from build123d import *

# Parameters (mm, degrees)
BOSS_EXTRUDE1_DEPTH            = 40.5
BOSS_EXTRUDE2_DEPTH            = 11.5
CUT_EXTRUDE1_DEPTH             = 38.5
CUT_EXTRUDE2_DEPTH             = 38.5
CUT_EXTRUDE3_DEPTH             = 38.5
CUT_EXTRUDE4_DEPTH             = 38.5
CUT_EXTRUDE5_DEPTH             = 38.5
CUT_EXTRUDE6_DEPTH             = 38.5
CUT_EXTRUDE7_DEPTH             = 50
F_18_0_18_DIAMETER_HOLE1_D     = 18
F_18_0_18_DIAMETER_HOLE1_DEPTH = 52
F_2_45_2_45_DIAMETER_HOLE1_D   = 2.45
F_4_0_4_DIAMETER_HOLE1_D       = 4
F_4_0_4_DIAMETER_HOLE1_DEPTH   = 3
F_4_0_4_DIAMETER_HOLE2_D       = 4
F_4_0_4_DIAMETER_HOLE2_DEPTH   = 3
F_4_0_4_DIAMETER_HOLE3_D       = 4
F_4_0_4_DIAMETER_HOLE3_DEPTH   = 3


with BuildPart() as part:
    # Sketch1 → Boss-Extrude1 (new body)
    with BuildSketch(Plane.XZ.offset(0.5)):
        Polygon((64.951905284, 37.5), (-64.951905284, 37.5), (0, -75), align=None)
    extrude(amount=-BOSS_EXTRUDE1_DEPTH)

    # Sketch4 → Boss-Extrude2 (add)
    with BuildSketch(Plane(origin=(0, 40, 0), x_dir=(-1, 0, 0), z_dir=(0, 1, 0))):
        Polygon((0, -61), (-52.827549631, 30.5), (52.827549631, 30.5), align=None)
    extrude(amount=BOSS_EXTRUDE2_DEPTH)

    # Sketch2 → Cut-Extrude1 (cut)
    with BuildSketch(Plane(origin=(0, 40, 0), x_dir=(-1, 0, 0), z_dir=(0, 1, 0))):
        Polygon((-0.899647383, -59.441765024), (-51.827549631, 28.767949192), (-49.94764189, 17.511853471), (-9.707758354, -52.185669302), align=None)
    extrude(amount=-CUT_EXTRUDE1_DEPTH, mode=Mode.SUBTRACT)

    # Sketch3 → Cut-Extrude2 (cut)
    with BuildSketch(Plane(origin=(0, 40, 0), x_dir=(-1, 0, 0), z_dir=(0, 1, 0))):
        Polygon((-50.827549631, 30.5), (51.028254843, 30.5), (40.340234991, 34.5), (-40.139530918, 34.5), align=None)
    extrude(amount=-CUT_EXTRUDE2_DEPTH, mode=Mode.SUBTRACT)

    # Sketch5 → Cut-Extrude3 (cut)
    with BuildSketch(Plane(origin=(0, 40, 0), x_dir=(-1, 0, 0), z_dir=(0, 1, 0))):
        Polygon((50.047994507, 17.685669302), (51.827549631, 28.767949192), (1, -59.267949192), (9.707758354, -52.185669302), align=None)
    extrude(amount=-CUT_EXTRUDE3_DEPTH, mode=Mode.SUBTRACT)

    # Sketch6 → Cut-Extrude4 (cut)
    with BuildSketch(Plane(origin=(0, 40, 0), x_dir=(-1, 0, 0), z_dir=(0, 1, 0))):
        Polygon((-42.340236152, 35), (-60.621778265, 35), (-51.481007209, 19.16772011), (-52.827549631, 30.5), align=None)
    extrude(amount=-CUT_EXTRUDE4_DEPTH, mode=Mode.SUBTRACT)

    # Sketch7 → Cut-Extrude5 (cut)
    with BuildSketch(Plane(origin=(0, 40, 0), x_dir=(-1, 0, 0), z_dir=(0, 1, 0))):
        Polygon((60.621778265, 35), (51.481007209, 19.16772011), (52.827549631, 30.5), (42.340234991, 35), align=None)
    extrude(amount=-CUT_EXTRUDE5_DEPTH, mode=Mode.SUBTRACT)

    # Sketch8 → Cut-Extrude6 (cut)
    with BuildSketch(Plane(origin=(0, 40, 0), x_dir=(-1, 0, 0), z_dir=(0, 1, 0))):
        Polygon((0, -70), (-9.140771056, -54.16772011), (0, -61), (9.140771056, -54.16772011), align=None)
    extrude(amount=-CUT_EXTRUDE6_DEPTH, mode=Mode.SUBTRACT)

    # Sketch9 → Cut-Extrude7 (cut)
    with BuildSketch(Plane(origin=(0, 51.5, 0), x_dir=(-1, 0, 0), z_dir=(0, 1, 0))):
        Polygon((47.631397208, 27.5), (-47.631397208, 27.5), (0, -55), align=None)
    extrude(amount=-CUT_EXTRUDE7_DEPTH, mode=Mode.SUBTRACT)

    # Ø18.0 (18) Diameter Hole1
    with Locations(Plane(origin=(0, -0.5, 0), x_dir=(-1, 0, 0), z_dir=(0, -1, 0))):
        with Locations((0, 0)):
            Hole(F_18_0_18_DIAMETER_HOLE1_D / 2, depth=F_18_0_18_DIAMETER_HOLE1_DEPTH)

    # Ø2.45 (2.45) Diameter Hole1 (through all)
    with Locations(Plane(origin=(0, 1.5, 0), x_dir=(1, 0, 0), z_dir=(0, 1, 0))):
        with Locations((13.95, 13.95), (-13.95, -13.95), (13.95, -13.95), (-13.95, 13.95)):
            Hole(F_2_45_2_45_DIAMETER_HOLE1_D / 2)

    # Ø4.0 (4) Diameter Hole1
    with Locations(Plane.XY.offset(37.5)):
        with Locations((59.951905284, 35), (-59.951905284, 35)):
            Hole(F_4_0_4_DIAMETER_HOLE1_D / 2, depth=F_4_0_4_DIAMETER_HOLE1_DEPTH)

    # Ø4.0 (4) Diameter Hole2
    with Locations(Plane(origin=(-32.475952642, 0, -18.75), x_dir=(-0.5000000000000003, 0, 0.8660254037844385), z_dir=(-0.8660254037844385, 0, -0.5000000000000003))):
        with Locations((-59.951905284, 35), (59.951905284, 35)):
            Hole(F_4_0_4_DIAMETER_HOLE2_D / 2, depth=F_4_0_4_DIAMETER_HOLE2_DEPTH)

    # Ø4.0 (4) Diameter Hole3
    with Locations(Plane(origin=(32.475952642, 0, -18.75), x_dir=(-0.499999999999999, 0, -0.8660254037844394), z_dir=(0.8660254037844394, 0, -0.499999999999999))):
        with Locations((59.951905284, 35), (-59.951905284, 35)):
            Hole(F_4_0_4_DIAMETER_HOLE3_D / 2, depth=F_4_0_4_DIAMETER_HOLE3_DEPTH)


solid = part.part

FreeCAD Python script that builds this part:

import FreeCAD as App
import Part
import Sketcher
Q = App.Units.Quantity


def add_polygon(sketch, points):
    """Adds a closed chain of lines whose ends are joined by coincident constraints."""
    first, n = sketch.GeometryCount, len(points)
    for a, b in zip(points, points[1:] + points[:1]):
        sketch.addGeometry(Part.LineSegment(App.Vector(*a, 0), App.Vector(*b, 0)), False)
    for i in range(n):
        sketch.addConstraint(Sketcher.Constraint("Coincident", first + i, 2, first + (i + 1) % n, 1))

doc = App.newDocument("Part")
body = doc.addObject("PartDesign::Body", "Body")

# Sketch on XZ plane
sketch1 = doc.addObject("Sketcher::SketchObject", "Sketch")
body.addObject(sketch1)
sketch1.AttachmentSupport = (doc.XZ_Plane, [""])
sketch1.MapMode = "FlatFace"
sketch1.AttachmentOffset = App.Placement(App.Vector(0, 0, 0.5), App.Rotation())
add_polygon(sketch1, [(64.951905, 37.5), (-64.951905, 37.5), (0, -75)])  # lines 0-2
sketch1.addConstraint([
    Sketcher.Constraint("Horizontal", 0),
    Sketcher.Constraint("PointOnObject", 1, 2, -2),
    Sketcher.Constraint("Equal", 1, 2),
    Sketcher.Constraint("Angle", 1, Q("-60 deg")),
    Sketcher.Constraint("DistanceY", 1, 2, -1, 1, Q("75 mm")),
    Sketcher.Constraint("DistanceY", -1, 1, 0, 2, Q("37.5 mm")),
])
pad1 = doc.addObject("PartDesign::Pad", "Pad")
body.addObject(pad1)
pad1.Profile = sketch1
pad1.Length = 40.5
pad1.Reversed = True

# Sketch on XZ plane
sketch2 = doc.addObject("Sketcher::SketchObject", "Sketch001")
body.addObject(sketch2)
sketch2.AttachmentSupport = (doc.XZ_Plane, [""])
sketch2.MapMode = "FlatFace"
sketch2.AttachmentOffset = App.Placement(App.Vector(0, 0, -40), App.Rotation())
add_polygon(sketch2, [(52.82755, 30.5), (0, -61), (-52.82755, 30.5)])  # lines 0-2
sketch2.addConstraint([
    Sketcher.Constraint("Horizontal", 2),
    Sketcher.Constraint("PointOnObject", 0, 2, -2),
    Sketcher.Constraint("Equal", 0, 1),
    Sketcher.Constraint("Angle", 0, Q("-120 deg")),
    Sketcher.Constraint("DistanceY", 0, 2, -1, 1, Q("61 mm")),
    Sketcher.Constraint("DistanceY", -1, 1, 1, 2, Q("30.5 mm")),
])
pad2 = doc.addObject("PartDesign::Pad", "Pad001")
body.addObject(pad2)
pad2.Profile = sketch2
pad2.Length = 11.5
pad2.Reversed = True

# Sketch on XZ plane
sketch3 = doc.addObject("Sketcher::SketchObject", "Sketch002")
body.addObject(sketch3)
sketch3.AttachmentSupport = (doc.XZ_Plane, [""])
sketch3.MapMode = "FlatFace"
sketch3.AttachmentOffset = App.Placement(App.Vector(0, 0, -40), App.Rotation())
add_polygon(sketch3, [(0.899647, -59.441765), (51.82755, 28.767949), (49.947642, 17.511853), (9.707758, -52.185669)])  # lines 0-3
sketch3.addConstraint([
    Sketcher.Constraint("Parallel", 0, 2),
    Sketcher.Constraint("Equal", 1, 3),
    Sketcher.Constraint("Angle", 0, Q("60 deg")),
    Sketcher.Constraint("Distance", 1, Q("11.412 mm")),
    Sketcher.Constraint("DistanceX", -1, 1, 0, 2, Q("51.82755 mm")),
    Sketcher.Constraint("DistanceY", -1, 1, 0, 2, Q("28.767949 mm")),
    Sketcher.Constraint("DistanceX", -1, 1, 1, 2, Q("49.947642 mm")),
    Sketcher.Constraint("DistanceX", -1, 1, 2, 2, Q("9.707758 mm")),
])
pocket1 = doc.addObject("PartDesign::Pocket", "Pocket")
body.addObject(pocket1)
pocket1.Profile = sketch3
pocket1.Length = 38.5
pocket1.Reversed = True

# Sketch on XZ plane
sketch4 = doc.addObject("Sketcher::SketchObject", "Sketch003")
body.addObject(sketch4)
sketch4.AttachmentSupport = (doc.XZ_Plane, [""])
sketch4.MapMode = "FlatFace"
sketch4.AttachmentOffset = App.Placement(App.Vector(0, 0, -40), App.Rotation())
add_polygon(sketch4, [(50.82755, 30.5), (-51.028255, 30.5), (-40.340235, 34.5), (40.139531, 34.5)])  # lines 0-3
sketch4.addConstraint([
    Sketcher.Constraint("Horizontal", 0),
    Sketcher.Constraint("Horizontal", 2),
    Sketcher.Constraint("Equal", 1, 3),
    Sketcher.Constraint("DistanceY", 0, 2, 1, 2, Q("4 mm")),
    Sketcher.Constraint("DistanceY", -1, 1, 0, 2, Q("30.5 mm")),
    Sketcher.Constraint("Distance", 1, Q("11.412001 mm")),
    Sketcher.Constraint("DistanceX", 0, 2, 0, 1, Q("101.855804 mm")),
    Sketcher.Constraint("DistanceX", -1, 1, 2, 2, Q("40.139531 mm")),
])
pocket2 = doc.addObject("PartDesign::Pocket", "Pocket001")
body.addObject(pocket2)
pocket2.Profile = sketch4
pocket2.Length = 38.5
pocket2.Reversed = True

# Sketch on XZ plane
sketch5 = doc.addObject("Sketcher::SketchObject", "Sketch004")
body.addObject(sketch5)
sketch5.AttachmentSupport = (doc.XZ_Plane, [""])
sketch5.MapMode = "FlatFace"
sketch5.AttachmentOffset = App.Placement(App.Vector(0, 0, -40), App.Rotation())
add_polygon(sketch5, [(-50.047995, 17.685669), (-51.82755, 28.767949), (-1, -59.267949), (-9.707758, -52.185669)])  # lines 0-3
sketch5.addConstraint([
    Sketcher.Constraint("Parallel", 1, 3),
    Sketcher.Constraint("Equal", 0, 2),
    Sketcher.Constraint("Angle", 1, Q("-60 deg")),
    Sketcher.Constraint("DistanceX", 1, 2, -1, 1, Q("1 mm")),
    Sketcher.Constraint("Distance", 1, Q("101.655099 mm")),
    Sketcher.Constraint("Distance", 0, Q("11.224248 mm")),
    Sketcher.Constraint("DistanceY", -1, 1, 0, 2, Q("28.767949 mm")),
    Sketcher.Constraint("DistanceX", 2, 2, -1, 1, Q("9.707758 mm")),
])
pocket3 = doc.addObject("PartDesign::Pocket", "Pocket002")
body.addObject(pocket3)
pocket3.Profile = sketch5
pocket3.Length = 38.5
pocket3.Reversed = True

# Sketch on XZ plane
sketch6 = doc.addObject("Sketcher::SketchObject", "Sketch005")
body.addObject(sketch6)
sketch6.AttachmentSupport = (doc.XZ_Plane, [""])
sketch6.MapMode = "FlatFace"
sketch6.AttachmentOffset = App.Placement(App.Vector(0, 0, -40), App.Rotation())
add_polygon(sketch6, [(42.340236, 35), (60.621778, 35), (51.481007, 19.16772), (52.82755, 30.5)])  # lines 0-3
sketch6.addConstraint([
    Sketcher.Constraint("Horizontal", 0),
    Sketcher.Constraint("Equal", 2, 3),
    Sketcher.Constraint("Angle", 1, Q("-120 deg")),
    Sketcher.Constraint("DistanceY", -1, 1, 0, 2, Q("35 mm")),
    Sketcher.Constraint("DistanceY", -1, 1, 2, 2, Q("30.5 mm")),
    Sketcher.Constraint("Distance", 2, Q("11.412 mm")),
    Sketcher.Constraint("DistanceX", 0, 1, 0, 2, Q("18.281542 mm")),
    Sketcher.Constraint("DistanceX", -1, 1, 0, 2, Q("60.621778 mm")),
])
pocket4 = doc.addObject("PartDesign::Pocket", "Pocket003")
body.addObject(pocket4)
pocket4.Profile = sketch6
pocket4.Length = 38.5
pocket4.Reversed = True

# Sketch on XZ plane
sketch7 = doc.addObject("Sketcher::SketchObject", "Sketch006")
body.addObject(sketch7)
sketch7.AttachmentSupport = (doc.XZ_Plane, [""])
sketch7.MapMode = "FlatFace"
sketch7.AttachmentOffset = App.Placement(App.Vector(0, 0, -40), App.Rotation())
add_polygon(sketch7, [(-51.481007, 19.16772), (-60.621778, 35), (-42.340235, 35), (-52.82755, 30.5)])  # lines 0-3
sketch7.addConstraint([
    Sketcher.Constraint("Horizontal", 1),
    Sketcher.Constraint("Equal", 2, 3),
    Sketcher.Constraint("Angle", 0, Q("120 deg")),
    Sketcher.Constraint("DistanceY", -1, 1, 0, 2, Q("35 mm")),
    Sketcher.Constraint("DistanceY", -1, 1, 2, 2, Q("30.5 mm")),
    Sketcher.Constraint("Distance", 2, Q("11.412001 mm")),
    Sketcher.Constraint("DistanceX", 1, 1, 1, 2, Q("18.281543 mm")),
    Sketcher.Constraint("DistanceX", 0, 2, -1, 1, Q("60.621778 mm")),
])
pocket5 = doc.addObject("PartDesign::Pocket", "Pocket004")
body.addObject(pocket5)
pocket5.Profile = sketch7
pocket5.Length = 38.5
pocket5.Reversed = True

# Sketch on XZ plane
sketch8 = doc.addObject("Sketcher::SketchObject", "Sketch007")
body.addObject(sketch8)
sketch8.AttachmentSupport = (doc.XZ_Plane, [""])
sketch8.MapMode = "FlatFace"
sketch8.AttachmentOffset = App.Placement(App.Vector(0, 0, -40), App.Rotation())
add_polygon(sketch8, [(9.140771, -54.16772), (0, -70), (-9.140771, -54.16772), (0, -61)])  # lines 0-3
sketch8.addConstraint([
    Sketcher.Constraint("Symmetric", 1, 2, 3, 2, -2),
    Sketcher.Constraint("PointOnObject", 0, 2, -2),
    Sketcher.Constraint("PointOnObject", 2, 2, -2),
    Sketcher.Constraint("Angle", 0, Q("-120 deg")),
    Sketcher.Constraint("DistanceY", 0, 2, -1, 1, Q("70 mm")),
    Sketcher.Constraint("DistanceY", 2, 2, -1, 1, Q("61 mm")),
    Sketcher.Constraint("Distance", 2, Q("11.412 mm")),
])
pocket6 = doc.addObject("PartDesign::Pocket", "Pocket005")
body.addObject(pocket6)
pocket6.Profile = sketch8
pocket6.Length = 38.5
pocket6.Reversed = True

# Sketch on XZ plane
sketch9 = doc.addObject("Sketcher::SketchObject", "Sketch008")
body.addObject(sketch9)
sketch9.AttachmentSupport = (doc.XZ_Plane, [""])
sketch9.MapMode = "FlatFace"
sketch9.AttachmentOffset = App.Placement(App.Vector(0, 0, -51.5), App.Rotation())
add_polygon(sketch9, [(-47.631397, 27.5), (47.631397, 27.5), (0, -55)])  # lines 0-2
sketch9.addConstraint([
    Sketcher.Constraint("Horizontal", 0),
    Sketcher.Constraint("PointOnObject", 1, 2, -2),
    Sketcher.Constraint("Equal", 1, 2),
    Sketcher.Constraint("Angle", 1, Q("-120 deg")),
    Sketcher.Constraint("DistanceY", 1, 2, -1, 1, Q("55 mm")),
    Sketcher.Constraint("DistanceY", -1, 1, 0, 2, Q("27.5 mm")),
])
pocket7 = doc.addObject("PartDesign::Pocket", "Pocket006")
body.addObject(pocket7)
pocket7.Profile = sketch9
pocket7.Length = 50
pocket7.Reversed = True

# Sketch on XZ plane
sketch10 = doc.addObject("Sketcher::SketchObject", "Sketch009")
body.addObject(sketch10)
sketch10.AttachmentSupport = (doc.XZ_Plane, [""])
sketch10.MapMode = "FlatFace"
sketch10.AttachmentOffset = App.Placement(App.Vector(0, 0, 0.5), App.Rotation())
sketch10.addGeometry(Part.Circle(App.Vector(0, 0, 0), App.Vector(0, 0, 1), 9), False)
sketch10.addConstraint([
    Sketcher.Constraint("Coincident", 0, 3, -1, 1),
    Sketcher.Constraint("Diameter", 0, Q("18 mm")),
])
doc.recompute()
hole = doc.addObject("PartDesign::Hole", "Hole")
body.addObject(hole)
hole.Profile = sketch10
hole.ThreadType = "None"
hole.Diameter = 18
hole.DepthType = "Dimension"
hole.Depth = 52
hole.DrillPoint = "Flat"

# Sketch on XZ plane
sketch11 = doc.addObject("Sketcher::SketchObject", "Sketch010")
body.addObject(sketch11)
sketch11.AttachmentSupport = (doc.XZ_Plane, [""])
sketch11.MapMode = "FlatFace"
sketch11.AttachmentOffset = App.Placement(App.Vector(0, 0, -1.5), App.Rotation())
sketch11.addGeometry([
    Part.Circle(App.Vector(13.95, -13.95, 0), App.Vector(0, 0, 1), 1.225),
    Part.Circle(App.Vector(-13.95, 13.95, 0), App.Vector(0, 0, 1), 1.225),
    Part.Circle(App.Vector(13.95, 13.95, 0), App.Vector(0, 0, 1), 1.225),
    Part.Circle(App.Vector(-13.95, -13.95, 0), App.Vector(0, 0, 1), 1.225),
], False)
sketch11.addConstraint([
    Sketcher.Constraint("Equal", 0, 1),
    Sketcher.Constraint("Equal", 1, 2),
    Sketcher.Constraint("Equal", 2, 3),
    Sketcher.Constraint("Symmetric", 0, 3, 1, 3, -1, 1),
    Sketcher.Constraint("Symmetric", 2, 3, 3, 3, -1, 1),
    Sketcher.Constraint("Symmetric", 1, 3, 2, 3, -2),
    Sketcher.Constraint("Diameter", 0, Q("2.45 mm")),
    Sketcher.Constraint("DistanceX", 1, 3, 0, 3, Q("27.9 mm")),
    Sketcher.Constraint("DistanceY", 0, 3, 1, 3, Q("27.9 mm")),
])
doc.recompute()
hole2 = doc.addObject("PartDesign::Hole", "Hole001")
body.addObject(hole2)
hole2.Profile = sketch11
hole2.ThreadType = "None"
hole2.Diameter = 2.45
hole2.DepthType = "ThroughAll"
hole2.Reversed = True

# Sketch on XY plane
sketch12 = doc.addObject("Sketcher::SketchObject", "Sketch011")
body.addObject(sketch12)
sketch12.AttachmentSupport = (doc.XY_Plane, [""])
sketch12.MapMode = "FlatFace"
sketch12.AttachmentOffset = App.Placement(App.Vector(0, 0, 37.5), App.Rotation())
sketch12.addGeometry([
    Part.Circle(App.Vector(59.951905, 35, 0), App.Vector(0, 0, 1), 2),
    Part.Circle(App.Vector(-59.951905, 35, 0), App.Vector(0, 0, 1), 2),
], False)
sketch12.addConstraint([
    Sketcher.Constraint("Equal", 0, 1),
    Sketcher.Constraint("Symmetric", 0, 3, 1, 3, -2),
    Sketcher.Constraint("Diameter", 0, Q("4 mm")),
    Sketcher.Constraint("DistanceY", -1, 1, 0, 3, Q("35 mm")),
    Sketcher.Constraint("DistanceX", 1, 3, 0, 3, Q("119.903811 mm")),
])
doc.recompute()
hole3 = doc.addObject("PartDesign::Hole", "Hole002")
body.addObject(hole3)
hole3.Profile = sketch12
hole3.ThreadType = "None"
hole3.Diameter = 4
hole3.DepthType = "Dimension"
hole3.Depth = 3
hole3.DrillPoint = "Flat"

# Sketch on an angled plane
sketch13 = doc.addObject("Sketcher::SketchObject", "Sketch012")
body.addObject(sketch13)
sketch13.Placement = App.Placement(App.Vector(-32.475953, 0, -18.75), App.Rotation(App.Vector(-0.5, 0, 0.866025404), App.Vector(0, 1, 0), App.Vector(-0.866025404, 0, -0.5), "ZXY"))
sketch13.addGeometry([
    Part.Circle(App.Vector(-59.951905, 35, 0), App.Vector(0, 0, 1), 2),
    Part.Circle(App.Vector(59.951905, 35, 0), App.Vector(0, 0, 1), 2),
], False)
sketch13.addConstraint([
    Sketcher.Constraint("Equal", 0, 1),
    Sketcher.Constraint("Symmetric", 0, 3, 1, 3, -2),
    Sketcher.Constraint("Diameter", 0, Q("4 mm")),
    Sketcher.Constraint("DistanceY", -1, 1, 0, 3, Q("35 mm")),
    Sketcher.Constraint("DistanceX", 0, 3, 1, 3, Q("119.903811 mm")),
])
doc.recompute()
hole4 = doc.addObject("PartDesign::Hole", "Hole003")
body.addObject(hole4)
hole4.Profile = sketch13
hole4.ThreadType = "None"
hole4.Diameter = 4
hole4.DepthType = "Dimension"
hole4.Depth = 3
hole4.DrillPoint = "Flat"

# Sketch on an angled plane
sketch14 = doc.addObject("Sketcher::SketchObject", "Sketch013")
body.addObject(sketch14)
sketch14.Placement = App.Placement(App.Vector(32.475953, 0, -18.75), App.Rotation(App.Vector(-0.5, 0, -0.866025404), App.Vector(0, 1, 0), App.Vector(0.866025404, 0, -0.5), "ZXY"))
sketch14.addGeometry([
    Part.Circle(App.Vector(59.951905, 35, 0), App.Vector(0, 0, 1), 2),
    Part.Circle(App.Vector(-59.951905, 35, 0), App.Vector(0, 0, 1), 2),
], False)
sketch14.addConstraint([
    Sketcher.Constraint("Equal", 0, 1),
    Sketcher.Constraint("Symmetric", 0, 3, 1, 3, -2),
    Sketcher.Constraint("Diameter", 0, Q("4 mm")),
    Sketcher.Constraint("DistanceY", -1, 1, 0, 3, Q("35 mm")),
    Sketcher.Constraint("DistanceX", 1, 3, 0, 3, Q("119.903811 mm")),
])
doc.recompute()
hole5 = doc.addObject("PartDesign::Hole", "Hole004")
body.addObject(hole5)
hole5.Profile = sketch14
hole5.ThreadType = "None"
hole5.Diameter = 4
hole5.DepthType = "Dimension"
hole5.Depth = 3
hole5.DrillPoint = "Flat"

doc.recompute()
